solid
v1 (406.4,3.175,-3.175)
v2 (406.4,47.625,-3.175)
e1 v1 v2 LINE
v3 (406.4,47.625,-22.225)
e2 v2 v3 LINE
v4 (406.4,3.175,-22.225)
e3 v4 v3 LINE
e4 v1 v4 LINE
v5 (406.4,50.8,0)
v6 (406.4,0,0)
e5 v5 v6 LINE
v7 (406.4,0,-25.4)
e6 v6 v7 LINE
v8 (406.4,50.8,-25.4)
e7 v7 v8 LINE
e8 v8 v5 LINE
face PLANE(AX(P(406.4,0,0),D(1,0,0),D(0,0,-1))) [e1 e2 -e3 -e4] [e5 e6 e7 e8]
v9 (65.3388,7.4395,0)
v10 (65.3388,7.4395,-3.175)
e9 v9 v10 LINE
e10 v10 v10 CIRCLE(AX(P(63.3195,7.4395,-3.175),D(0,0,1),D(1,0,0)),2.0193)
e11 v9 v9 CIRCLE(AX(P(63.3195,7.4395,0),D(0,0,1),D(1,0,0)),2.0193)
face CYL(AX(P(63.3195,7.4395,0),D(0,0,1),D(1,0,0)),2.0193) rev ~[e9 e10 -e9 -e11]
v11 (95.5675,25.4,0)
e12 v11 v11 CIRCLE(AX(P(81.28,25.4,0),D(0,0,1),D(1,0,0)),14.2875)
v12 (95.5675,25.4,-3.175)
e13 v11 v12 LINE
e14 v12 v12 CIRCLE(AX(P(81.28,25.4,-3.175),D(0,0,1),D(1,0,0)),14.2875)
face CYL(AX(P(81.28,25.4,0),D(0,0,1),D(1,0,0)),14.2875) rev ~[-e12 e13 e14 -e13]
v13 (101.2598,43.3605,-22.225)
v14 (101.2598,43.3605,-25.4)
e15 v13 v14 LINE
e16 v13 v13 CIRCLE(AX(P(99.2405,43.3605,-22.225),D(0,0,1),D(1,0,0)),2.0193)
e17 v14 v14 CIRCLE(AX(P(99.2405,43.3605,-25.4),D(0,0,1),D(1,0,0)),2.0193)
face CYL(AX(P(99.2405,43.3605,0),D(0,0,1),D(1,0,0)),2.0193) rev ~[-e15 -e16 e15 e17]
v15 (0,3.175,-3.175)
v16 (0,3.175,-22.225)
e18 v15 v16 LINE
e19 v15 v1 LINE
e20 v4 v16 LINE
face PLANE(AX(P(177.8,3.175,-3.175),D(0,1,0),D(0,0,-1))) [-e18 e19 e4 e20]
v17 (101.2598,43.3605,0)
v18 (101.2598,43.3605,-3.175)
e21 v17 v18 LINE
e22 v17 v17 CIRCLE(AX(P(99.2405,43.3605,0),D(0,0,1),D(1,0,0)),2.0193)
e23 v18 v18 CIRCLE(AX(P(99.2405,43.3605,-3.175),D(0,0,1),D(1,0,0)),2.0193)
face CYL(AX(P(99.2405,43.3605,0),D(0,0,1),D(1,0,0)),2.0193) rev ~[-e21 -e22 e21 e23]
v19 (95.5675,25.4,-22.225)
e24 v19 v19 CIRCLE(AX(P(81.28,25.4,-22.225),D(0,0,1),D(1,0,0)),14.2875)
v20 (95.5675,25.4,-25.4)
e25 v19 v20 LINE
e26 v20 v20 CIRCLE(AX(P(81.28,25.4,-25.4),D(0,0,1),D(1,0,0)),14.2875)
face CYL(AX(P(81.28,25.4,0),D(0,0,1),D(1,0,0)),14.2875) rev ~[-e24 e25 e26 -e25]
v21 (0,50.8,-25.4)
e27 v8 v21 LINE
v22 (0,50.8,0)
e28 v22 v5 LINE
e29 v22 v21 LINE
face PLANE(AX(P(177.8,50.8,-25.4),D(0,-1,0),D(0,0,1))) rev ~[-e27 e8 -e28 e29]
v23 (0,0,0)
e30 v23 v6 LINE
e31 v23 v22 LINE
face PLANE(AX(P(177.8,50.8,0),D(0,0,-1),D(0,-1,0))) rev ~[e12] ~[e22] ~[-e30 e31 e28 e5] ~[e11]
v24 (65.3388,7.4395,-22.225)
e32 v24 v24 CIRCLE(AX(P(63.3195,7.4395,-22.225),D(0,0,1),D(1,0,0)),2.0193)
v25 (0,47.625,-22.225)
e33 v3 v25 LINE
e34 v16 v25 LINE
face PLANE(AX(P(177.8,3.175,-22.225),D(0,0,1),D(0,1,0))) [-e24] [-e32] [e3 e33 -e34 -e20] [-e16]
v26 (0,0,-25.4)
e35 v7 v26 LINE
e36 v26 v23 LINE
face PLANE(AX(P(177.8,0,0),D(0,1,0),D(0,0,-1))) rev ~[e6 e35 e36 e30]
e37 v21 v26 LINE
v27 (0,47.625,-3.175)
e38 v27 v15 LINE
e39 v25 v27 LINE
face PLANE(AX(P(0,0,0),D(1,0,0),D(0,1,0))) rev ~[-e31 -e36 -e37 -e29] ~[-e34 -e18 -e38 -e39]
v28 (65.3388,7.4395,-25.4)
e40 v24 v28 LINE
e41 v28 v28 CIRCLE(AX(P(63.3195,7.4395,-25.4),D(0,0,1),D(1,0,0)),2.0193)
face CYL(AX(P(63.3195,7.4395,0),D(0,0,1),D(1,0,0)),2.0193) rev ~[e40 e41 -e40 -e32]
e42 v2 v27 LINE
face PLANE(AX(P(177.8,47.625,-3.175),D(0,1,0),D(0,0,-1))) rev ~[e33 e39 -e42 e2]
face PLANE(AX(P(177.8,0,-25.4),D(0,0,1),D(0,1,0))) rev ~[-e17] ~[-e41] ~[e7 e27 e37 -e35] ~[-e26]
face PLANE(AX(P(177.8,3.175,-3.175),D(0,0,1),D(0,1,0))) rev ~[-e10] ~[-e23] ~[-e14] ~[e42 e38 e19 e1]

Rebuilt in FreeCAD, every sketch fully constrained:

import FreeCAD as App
import Part
import Sketcher
from FreeCAD import Vector
Q = App.Units.Quantity

doc = App.newDocument("Part")
body = doc.addObject("PartDesign::Body", "Body")

# Sketch on YZ plane
sketch1 = doc.addObject("Sketcher::SketchObject", "Sketch")
body.addObject(sketch1)
sketch1.AttachmentSupport = (doc.YZ_Plane, [""])
sketch1.MapMode = "FlatFace"
sketch1.addGeometry(Part.LineSegment(Vector(51, 0, 0), Vector(0, 0, 0)), False)
sketch1.addGeometry(Part.LineSegment(Vector(0, 0, 0), Vector(0, -25, 0)), False)
sketch1.addGeometry(Part.LineSegment(Vector(0, -25, 0), Vector(51, -25, 0)), False)
sketch1.addGeometry(Part.LineSegment(Vector(51, -25, 0), Vector(51, 0, 0)), False)
sketch1.addGeometry(Part.LineSegment(Vector(48, -3, 0), Vector(48, -22, 0)), False)
sketch1.addGeometry(Part.LineSegment(Vector(48, -22, 0), Vector(3, -22, 0)), False)
sketch1.addGeometry(Part.LineSegment(Vector(3, -22, 0), Vector(3, -3, 0)), False)
sketch1.addGeometry(Part.LineSegment(Vector(3, -3, 0), Vector(48, -3, 0)), False)
sketch1.addConstraint(Sketcher.Constraint("Coincident", 0, 2, 1, 1))
sketch1.addConstraint(Sketcher.Constraint("Coincident", 1, 2, 2, 1))
sketch1.addConstraint(Sketcher.Constraint("Coincident", 2, 2, 3, 1))
sketch1.addConstraint(Sketcher.Constraint("Coincident", 3, 2, 0, 1))
sketch1.addConstraint(Sketcher.Constraint("Coincident", 4, 2, 5, 1))
sketch1.addConstraint(Sketcher.Constraint("Coincident", 5, 2, 6, 1))
sketch1.addConstraint(Sketcher.Constraint("Coincident", 6, 2, 7, 1))
sketch1.addConstraint(Sketcher.Constraint("Coincident", 7, 2, 4, 1))
sketch1.addConstraint(Sketcher.Constraint("Horizontal", 0))
sketch1.addConstraint(Sketcher.Constraint("Vertical", 1))
sketch1.addConstraint(Sketcher.Constraint("Horizontal", 2))
sketch1.addConstraint(Sketcher.Constraint("Vertical", 3))
sketch1.addConstraint(Sketcher.Constraint("Vertical", 4))
sketch1.addConstraint(Sketcher.Constraint("Horizontal", 5))
sketch1.addConstraint(Sketcher.Constraint("Vertical", 6))
sketch1.addConstraint(Sketcher.Constraint("Horizontal", 7))
sketch1.addConstraint(Sketcher.Constraint("Coincident", 0, 2, -1, 1))
sketch1.addConstraint(Sketcher.Constraint("DistanceX", 0, 2, 0, 1, Q("2 in")))
sketch1.addConstraint(Sketcher.Constraint("DistanceY", 1, 2, 1, 1, Q("1 in")))
sketch1.addConstraint(Sketcher.Constraint("DistanceX", -1, 1, 5, 2, Q("0.125 in")))
sketch1.addConstraint(Sketcher.Constraint("DistanceY", 6, 2, -1, 1, Q("0.125 in")))
sketch1.addConstraint(Sketcher.Constraint("DistanceX", 4, 2, 2, 2, Q("0.125 in")))
sketch1.addConstraint(Sketcher.Constraint("DistanceY", 2, 2, 4, 2, Q("0.125 in")))
pad1 = doc.addObject("PartDesign::Pad", "Pad")
body.addObject(pad1)
pad1.Profile = sketch1
pad1.Length = Q("7 in")

# Sketch on XY plane
sketch2 = doc.addObject("Sketcher::SketchObject", "Sketch001")
body.addObject(sketch2)
sketch2.AttachmentSupport = (doc.XY_Plane, [""])
sketch2.MapMode = "FlatFace"
sketch2.addGeometry(Part.Circle(Vector(81, 25, 0), Vector(0, 0, 1), 14), False)
sketch2.addConstraint(Sketcher.Constraint("Diameter", 0, Q("1.125 in")))
sketch2.addConstraint(Sketcher.Constraint("DistanceX", -1, 1, 0, 3, Q("3.2 in")))
sketch2.addConstraint(Sketcher.Constraint("DistanceY", -1, 1, 0, 3, Q("1 in")))
pocket1 = doc.addObject("PartDesign::Pocket", "Pocket")
body.addObject(pocket1)
pocket1.Profile = sketch2
pocket1.Length = Q("1 in")

# Sketch on YZ plane
sketch3 = doc.addObject("Sketcher::SketchObject", "Sketch002")
body.addObject(sketch3)
sketch3.AttachmentSupport = (doc.YZ_Plane, [""])
sketch3.MapMode = "FlatFace"
sketch3.AttachmentOffset = App.Placement(Vector(0, 0, 7 * 25.4), App.Rotation())
sketch3.addGeometry(Part.LineSegment(Vector(51, -25, 0), Vector(51, 0, 0)), False)
sketch3.addGeometry(Part.LineSegment(Vector(51, 0, 0), Vector(0, 0, 0)), False)
sketch3.addGeometry(Part.LineSegment(Vector(0, 0, 0), Vector(0, -25, 0)), False)
sketch3.addGeometry(Part.LineSegment(Vector(0, -25, 0), Vector(51, -25, 0)), False)
sketch3.addGeometry(Part.LineSegment(Vector(3, -22, 0), Vector(3, -3, 0)), False)
sketch3.addGeometry(Part.LineSegment(Vector(3, -3, 0), Vector(48, -3, 0)), False)
sketch3.addGeometry(Part.LineSegment(Vector(48, -3, 0), Vector(48, -22, 0)), False)
sketch3.addGeometry(Part.LineSegment(Vector(48, -22, 0), Vector(3, -22, 0)), False)
sketch3.addConstraint(Sketcher.Constraint("Coincident", 0, 2, 1, 1))
sketch3.addConstraint(Sketcher.Constraint("Coincident", 1, 2, 2, 1))
sketch3.addConstraint(Sketcher.Constraint("Coincident", 2, 2, 3, 1))
sketch3.addConstraint(Sketcher.Constraint("Coincident", 3, 2, 0, 1))
sketch3.addConstraint(Sketcher.Constraint("Coincident", 4, 2, 5, 1))
sketch3.addConstraint(Sketcher.Constraint("Coincident", 5, 2, 6, 1))
sketch3.addConstraint(Sketcher.Constraint("Coincident", 6, 2, 7, 1))
sketch3.addConstraint(Sketcher.Constraint("Coincident", 7, 2, 4, 1))
sketch3.addConstraint(Sketcher.Constraint("Vertical", 0))
sketch3.addConstraint(Sketcher.Constraint("Horizontal", 1))
sketch3.addConstraint(Sketcher.Constraint("Vertical", 2))
sketch3.addConstraint(Sketcher.Constraint("Horizontal", 3))
sketch3.addConstraint(Sketcher.Constraint("Vertical", 4))
sketch3.addConstraint(Sketcher.Constraint("Horizontal", 5))
sketch3.addConstraint(Sketcher.Constraint("Vertical", 6))
sketch3.addConstraint(Sketcher.Constraint("Horizontal", 7))
sketch3.addConstraint(Sketcher.Constraint("Coincident", 1, 2, -1, 1))
sketch3.addConstraint(Sketcher.Constraint("DistanceX", 1, 2, 1, 1, Q("2 in")))
sketch3.addConstraint(Sketcher.Constraint("DistanceY", 0, 1, 0, 2, Q("1 in")))
sketch3.addConstraint(Sketcher.Constraint("DistanceX", 5, 1, 5, 2, Q("1.75 in")))
sketch3.addConstraint(Sketcher.Constraint("DistanceY", 4, 1, 4, 2, Q("0.75 in")))
sketch3.addConstraint(Sketcher.Constraint("DistanceX", -1, 1, 4, 2, Q("0.125 in")))
sketch3.addConstraint(Sketcher.Constraint("DistanceY", 4, 2, -1, 1, Q("0.125 in")))
pad2 = doc.addObject("PartDesign::Pad", "Pad001")
body.addObject(pad2)
pad2.Profile = sketch3
pad2.Length = Q("9 in")

# Sketch on XY plane
sketch4 = doc.addObject("Sketcher::SketchObject", "Sketch003")
body.addObject(sketch4)
sketch4.AttachmentSupport = (doc.XY_Plane, [""])
sketch4.MapMode = "FlatFace"
sketch4.addGeometry(Part.Circle(Vector(99.2, 43.4, 0), Vector(0, 0, 1), 2), False)
sketch4.addGeometry(Part.Circle(Vector(63.3, 7.4, 0), Vector(0, 0, 1), 2), False)
sketch4.addConstraint(Sketcher.Constraint("Equal", 0, 1))
sketch4.addConstraint(Sketcher.Constraint("Diameter", 0, Q("0.159 in")))
sketch4.addConstraint(Sketcher.Constraint("DistanceX", -1, 1, 0, 3, Q("3.9071 in")))
sketch4.addConstraint(Sketcher.Constraint("DistanceY", -1, 1, 0, 3, Q("1.7071 in")))
sketch4.addConstraint(Sketcher.Constraint("DistanceX", -1, 1, 1, 3, Q("2.4929 in")))
sketch4.addConstraint(Sketcher.Constraint("DistanceY", -1, 1, 1, 3, Q("0.2929 in")))
pocket2 = doc.addObject("PartDesign::Pocket", "Pocket001")
body.addObject(pocket2)
pocket2.Profile = sketch4
pocket2.Length = Q("9 in")

doc.recompute()
